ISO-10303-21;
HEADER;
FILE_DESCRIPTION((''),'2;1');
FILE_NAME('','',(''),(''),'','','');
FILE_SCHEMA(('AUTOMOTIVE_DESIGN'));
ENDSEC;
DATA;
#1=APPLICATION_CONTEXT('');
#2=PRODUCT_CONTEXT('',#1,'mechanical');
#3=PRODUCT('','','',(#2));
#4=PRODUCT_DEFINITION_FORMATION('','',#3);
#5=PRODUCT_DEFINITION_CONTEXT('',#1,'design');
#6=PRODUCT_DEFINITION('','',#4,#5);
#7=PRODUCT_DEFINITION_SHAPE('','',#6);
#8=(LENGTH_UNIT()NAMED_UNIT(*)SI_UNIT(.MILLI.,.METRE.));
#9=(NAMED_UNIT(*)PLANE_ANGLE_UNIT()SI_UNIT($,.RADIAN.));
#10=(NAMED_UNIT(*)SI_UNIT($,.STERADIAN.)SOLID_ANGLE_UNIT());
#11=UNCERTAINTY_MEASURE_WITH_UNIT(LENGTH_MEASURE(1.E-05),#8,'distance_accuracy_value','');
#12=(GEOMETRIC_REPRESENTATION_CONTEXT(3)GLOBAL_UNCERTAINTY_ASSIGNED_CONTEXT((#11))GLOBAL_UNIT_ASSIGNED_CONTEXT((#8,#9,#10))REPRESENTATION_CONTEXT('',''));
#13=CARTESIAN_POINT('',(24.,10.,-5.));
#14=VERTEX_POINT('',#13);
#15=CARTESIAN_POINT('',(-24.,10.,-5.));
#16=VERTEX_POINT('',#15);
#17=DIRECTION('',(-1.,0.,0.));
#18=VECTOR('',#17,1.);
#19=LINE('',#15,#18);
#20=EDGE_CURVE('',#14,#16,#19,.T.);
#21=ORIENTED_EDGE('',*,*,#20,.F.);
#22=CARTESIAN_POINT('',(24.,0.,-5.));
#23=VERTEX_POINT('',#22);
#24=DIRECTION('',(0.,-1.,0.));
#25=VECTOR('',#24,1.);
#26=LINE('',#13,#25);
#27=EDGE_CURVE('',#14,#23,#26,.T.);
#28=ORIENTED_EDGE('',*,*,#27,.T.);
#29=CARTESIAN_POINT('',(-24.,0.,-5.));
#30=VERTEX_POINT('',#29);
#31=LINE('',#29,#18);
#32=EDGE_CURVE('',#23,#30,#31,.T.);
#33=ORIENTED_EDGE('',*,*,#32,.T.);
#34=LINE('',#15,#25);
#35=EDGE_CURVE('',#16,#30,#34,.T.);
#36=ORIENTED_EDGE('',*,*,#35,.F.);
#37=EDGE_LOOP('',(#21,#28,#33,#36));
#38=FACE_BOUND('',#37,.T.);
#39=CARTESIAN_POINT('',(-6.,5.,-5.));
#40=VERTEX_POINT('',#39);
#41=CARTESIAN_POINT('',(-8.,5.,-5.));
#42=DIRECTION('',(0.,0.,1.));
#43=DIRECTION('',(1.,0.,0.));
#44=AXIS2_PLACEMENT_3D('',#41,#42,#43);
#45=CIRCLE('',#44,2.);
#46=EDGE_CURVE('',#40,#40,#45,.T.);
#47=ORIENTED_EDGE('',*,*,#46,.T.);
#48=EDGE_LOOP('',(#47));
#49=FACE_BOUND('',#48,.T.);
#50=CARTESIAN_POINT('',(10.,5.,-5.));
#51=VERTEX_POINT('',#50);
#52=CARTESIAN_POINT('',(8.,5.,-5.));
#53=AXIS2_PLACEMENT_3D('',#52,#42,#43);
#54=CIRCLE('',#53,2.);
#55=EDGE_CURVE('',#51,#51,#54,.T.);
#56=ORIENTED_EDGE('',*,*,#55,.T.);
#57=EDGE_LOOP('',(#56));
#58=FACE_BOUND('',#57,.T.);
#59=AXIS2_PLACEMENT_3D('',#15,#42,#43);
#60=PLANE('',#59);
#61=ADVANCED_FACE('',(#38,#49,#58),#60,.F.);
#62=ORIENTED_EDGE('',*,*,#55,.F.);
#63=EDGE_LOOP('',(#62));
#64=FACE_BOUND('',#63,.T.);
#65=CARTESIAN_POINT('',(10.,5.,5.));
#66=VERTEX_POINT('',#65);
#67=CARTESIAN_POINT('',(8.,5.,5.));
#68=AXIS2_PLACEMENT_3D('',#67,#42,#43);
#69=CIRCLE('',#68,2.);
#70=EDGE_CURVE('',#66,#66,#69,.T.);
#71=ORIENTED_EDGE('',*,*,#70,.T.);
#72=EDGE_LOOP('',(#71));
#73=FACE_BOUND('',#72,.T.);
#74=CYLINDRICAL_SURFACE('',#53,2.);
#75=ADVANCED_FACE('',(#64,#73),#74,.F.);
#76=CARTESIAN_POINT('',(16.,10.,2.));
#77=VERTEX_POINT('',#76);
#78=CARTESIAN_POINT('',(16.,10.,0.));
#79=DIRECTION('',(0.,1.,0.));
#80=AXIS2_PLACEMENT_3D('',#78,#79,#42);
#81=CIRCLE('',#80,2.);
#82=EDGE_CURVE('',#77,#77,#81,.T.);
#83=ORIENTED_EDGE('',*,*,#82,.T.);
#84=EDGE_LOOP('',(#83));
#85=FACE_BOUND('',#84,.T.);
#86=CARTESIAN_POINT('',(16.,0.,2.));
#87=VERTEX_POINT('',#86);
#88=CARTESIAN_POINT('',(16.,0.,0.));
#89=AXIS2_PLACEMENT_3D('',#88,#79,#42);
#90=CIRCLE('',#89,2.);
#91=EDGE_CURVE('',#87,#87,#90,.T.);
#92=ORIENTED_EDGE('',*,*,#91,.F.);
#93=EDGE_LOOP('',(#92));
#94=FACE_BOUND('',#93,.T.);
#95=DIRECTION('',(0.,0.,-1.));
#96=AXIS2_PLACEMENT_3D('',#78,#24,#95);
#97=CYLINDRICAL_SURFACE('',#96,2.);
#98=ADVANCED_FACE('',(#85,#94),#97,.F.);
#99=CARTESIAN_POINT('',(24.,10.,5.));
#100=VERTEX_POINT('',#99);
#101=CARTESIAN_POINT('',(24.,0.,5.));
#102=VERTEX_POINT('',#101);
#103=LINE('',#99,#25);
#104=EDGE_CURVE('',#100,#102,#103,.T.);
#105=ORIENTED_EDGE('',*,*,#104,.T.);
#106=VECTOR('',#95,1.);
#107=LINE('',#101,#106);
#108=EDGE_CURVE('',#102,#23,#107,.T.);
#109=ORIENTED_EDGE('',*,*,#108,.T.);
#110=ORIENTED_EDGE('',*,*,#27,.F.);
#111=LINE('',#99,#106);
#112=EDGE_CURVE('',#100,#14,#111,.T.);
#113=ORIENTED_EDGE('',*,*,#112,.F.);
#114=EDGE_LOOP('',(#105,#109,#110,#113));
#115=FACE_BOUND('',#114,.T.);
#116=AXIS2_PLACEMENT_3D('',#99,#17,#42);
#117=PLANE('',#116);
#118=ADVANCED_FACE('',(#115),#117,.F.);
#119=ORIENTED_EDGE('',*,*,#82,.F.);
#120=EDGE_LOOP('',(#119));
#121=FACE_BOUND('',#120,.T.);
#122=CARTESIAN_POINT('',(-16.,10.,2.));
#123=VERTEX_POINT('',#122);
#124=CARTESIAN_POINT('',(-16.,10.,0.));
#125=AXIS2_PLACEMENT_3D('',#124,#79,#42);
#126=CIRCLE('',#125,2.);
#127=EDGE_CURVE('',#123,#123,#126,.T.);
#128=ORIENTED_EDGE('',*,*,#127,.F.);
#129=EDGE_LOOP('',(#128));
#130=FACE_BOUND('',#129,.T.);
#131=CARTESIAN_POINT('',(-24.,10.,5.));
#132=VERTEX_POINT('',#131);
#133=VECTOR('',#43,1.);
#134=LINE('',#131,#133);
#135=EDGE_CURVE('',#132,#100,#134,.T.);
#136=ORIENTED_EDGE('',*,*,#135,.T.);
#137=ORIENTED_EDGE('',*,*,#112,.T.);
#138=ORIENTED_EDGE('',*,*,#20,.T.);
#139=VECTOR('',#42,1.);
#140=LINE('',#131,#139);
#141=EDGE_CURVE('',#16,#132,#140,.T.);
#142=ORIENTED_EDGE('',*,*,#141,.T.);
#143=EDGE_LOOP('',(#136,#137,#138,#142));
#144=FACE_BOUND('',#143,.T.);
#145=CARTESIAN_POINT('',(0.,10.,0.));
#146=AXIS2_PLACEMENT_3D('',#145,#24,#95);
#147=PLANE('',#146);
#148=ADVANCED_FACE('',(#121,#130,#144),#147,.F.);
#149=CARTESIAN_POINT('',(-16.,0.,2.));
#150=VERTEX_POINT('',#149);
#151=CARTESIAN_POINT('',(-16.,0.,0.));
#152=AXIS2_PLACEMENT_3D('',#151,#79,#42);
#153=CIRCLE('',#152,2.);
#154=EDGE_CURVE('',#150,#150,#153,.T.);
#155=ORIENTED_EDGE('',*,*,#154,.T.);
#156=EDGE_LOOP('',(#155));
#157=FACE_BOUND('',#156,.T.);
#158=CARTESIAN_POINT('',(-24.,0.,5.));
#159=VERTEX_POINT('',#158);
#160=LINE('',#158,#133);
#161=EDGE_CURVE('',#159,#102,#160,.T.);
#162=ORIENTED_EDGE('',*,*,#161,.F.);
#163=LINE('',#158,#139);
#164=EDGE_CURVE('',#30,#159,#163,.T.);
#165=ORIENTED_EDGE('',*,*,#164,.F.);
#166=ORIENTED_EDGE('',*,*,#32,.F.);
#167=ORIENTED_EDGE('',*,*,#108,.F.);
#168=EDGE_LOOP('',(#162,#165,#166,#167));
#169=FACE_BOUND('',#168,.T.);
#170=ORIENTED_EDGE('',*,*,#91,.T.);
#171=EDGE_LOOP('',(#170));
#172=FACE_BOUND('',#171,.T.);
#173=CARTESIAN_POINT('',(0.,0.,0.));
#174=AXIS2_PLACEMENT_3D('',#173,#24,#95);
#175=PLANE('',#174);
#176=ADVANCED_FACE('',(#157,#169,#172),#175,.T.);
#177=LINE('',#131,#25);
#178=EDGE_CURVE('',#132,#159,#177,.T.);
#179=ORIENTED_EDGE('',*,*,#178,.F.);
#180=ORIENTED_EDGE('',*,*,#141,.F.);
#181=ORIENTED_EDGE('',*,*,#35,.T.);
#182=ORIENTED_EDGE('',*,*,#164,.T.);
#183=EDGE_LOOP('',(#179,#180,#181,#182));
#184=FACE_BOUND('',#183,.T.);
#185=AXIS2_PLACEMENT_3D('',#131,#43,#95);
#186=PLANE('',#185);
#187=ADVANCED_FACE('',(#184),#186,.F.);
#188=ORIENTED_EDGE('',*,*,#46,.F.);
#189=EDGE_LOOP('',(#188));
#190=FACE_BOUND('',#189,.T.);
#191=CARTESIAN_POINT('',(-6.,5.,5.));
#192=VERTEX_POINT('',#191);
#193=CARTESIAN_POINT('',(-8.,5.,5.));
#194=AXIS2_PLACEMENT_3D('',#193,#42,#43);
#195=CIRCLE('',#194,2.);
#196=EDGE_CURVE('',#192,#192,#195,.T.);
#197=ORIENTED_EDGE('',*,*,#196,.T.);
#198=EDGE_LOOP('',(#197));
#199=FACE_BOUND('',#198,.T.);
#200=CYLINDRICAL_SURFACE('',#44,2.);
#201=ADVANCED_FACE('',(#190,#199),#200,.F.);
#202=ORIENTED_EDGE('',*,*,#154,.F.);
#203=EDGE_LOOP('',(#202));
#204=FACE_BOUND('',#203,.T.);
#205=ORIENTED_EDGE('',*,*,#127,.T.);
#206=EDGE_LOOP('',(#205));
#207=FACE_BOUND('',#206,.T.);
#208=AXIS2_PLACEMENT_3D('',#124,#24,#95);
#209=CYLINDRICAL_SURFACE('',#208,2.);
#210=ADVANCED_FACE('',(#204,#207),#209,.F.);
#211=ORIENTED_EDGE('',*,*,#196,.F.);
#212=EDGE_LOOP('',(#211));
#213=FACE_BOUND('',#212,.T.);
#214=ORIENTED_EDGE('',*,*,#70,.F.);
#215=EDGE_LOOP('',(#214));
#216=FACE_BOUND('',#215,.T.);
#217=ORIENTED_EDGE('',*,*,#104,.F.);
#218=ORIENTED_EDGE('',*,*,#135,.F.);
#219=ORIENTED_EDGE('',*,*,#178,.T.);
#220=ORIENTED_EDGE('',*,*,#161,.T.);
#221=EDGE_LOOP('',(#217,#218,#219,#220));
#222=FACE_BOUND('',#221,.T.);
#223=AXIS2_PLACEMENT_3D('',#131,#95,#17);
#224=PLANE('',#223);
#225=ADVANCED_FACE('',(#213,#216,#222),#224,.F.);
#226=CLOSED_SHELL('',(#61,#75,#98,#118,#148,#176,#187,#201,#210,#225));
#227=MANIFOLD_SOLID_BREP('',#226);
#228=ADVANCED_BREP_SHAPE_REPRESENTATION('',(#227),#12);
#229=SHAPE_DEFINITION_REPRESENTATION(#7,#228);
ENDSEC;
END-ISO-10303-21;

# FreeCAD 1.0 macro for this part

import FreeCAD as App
import Part
import Sketcher

V = App.Vector


def add_polygon(sketch, points):
    """Adds a closed chain of lines whose ends are joined by coincident constraints."""
    first, n = sketch.GeometryCount, len(points)
    for a, b in zip(points, points[1:] + points[:1]):
        sketch.addGeometry(Part.LineSegment(App.Vector(*a, 0), App.Vector(*b, 0)), False)
    for i in range(n):
        sketch.addConstraint(Sketcher.Constraint("Coincident", first + i, 2, first + (i + 1) % n, 1))

doc = App.newDocument("Part")
body = doc.addObject("PartDesign::Body", "Body")

sketch1 = doc.addObject("Sketcher::SketchObject", "Sketch")
body.addObject(sketch1)
sketch1.AttachmentSupport = (doc.XZ_Plane, [""])
sketch1.MapMode = "FlatFace"
add_polygon(sketch1, [(-24, -5), (-24, 5), (24, 5), (24, -5)])
sketch1.addGeometry(Part.Circle(V(-16, 0, 0), V(0, 0, 1), 2), False)
sketch1.addGeometry(Part.Circle(V(16, 0, 0), V(0, 0, 1), 2), False)
sketch1.addConstraint([
    Sketcher.Constraint("Vertical", 0),
    Sketcher.Constraint("Horizontal", 1),
    Sketcher.Constraint("Vertical", 2),
    Sketcher.Constraint("Horizontal", 3),
    Sketcher.Constraint("Equal", 4, 5),
    Sketcher.Constraint("Symmetric", 4, 3, 5, 3, -1, 1),
    Sketcher.Constraint("Symmetric", 0, 2, 2, 2, -1, 1),
    Sketcher.Constraint("PointOnObject", 4, 3, -1),
    Sketcher.Constraint("Diameter", 4, 4.0),
    Sketcher.Constraint("DistanceX", 1, 1, 1, 2, 48.0),
    Sketcher.Constraint("DistanceY", 0, 1, 0, 2, 10.0),
    Sketcher.Constraint("DistanceX", 4, 3, -1, 1, 16.0),
])
pad1 = doc.addObject("PartDesign::Pad", "Pad")
body.addObject(pad1)
pad1.Profile = sketch1
pad1.Length = 10
pad1.Reversed = True

sketch2 = doc.addObject("Sketcher::SketchObject", "Sketch001")
body.addObject(sketch2)
sketch2.AttachmentSupport = (doc.XY_Plane, [""])
sketch2.MapMode = "FlatFace"
sketch2.AttachmentOffset = App.Placement(V(0, 0, 5), App.Rotation())
sketch2.addGeometry([
    Part.Circle(V(-8, 5, 0), V(0, 0, 1), 2),
    Part.Circle(V(8, 5, 0), V(0, 0, 1), 2),
], False)
sketch2.addConstraint([
    Sketcher.Constraint("Equal", 0, 1),
    Sketcher.Constraint("Symmetric", 0, 3, 1, 3, -2),
    Sketcher.Constraint("Diameter", 0, 4.0),
    Sketcher.Constraint("DistanceX", 0, 3, -1, 1, 8.0),
    Sketcher.Constraint("DistanceY", -1, 1, 0, 3, 5.0),
])
pocket1 = doc.addObject("PartDesign::Pocket", "Pocket")
body.addObject(pocket1)
pocket1.Profile = sketch2
pocket1.Length = 10

doc.recompute()
